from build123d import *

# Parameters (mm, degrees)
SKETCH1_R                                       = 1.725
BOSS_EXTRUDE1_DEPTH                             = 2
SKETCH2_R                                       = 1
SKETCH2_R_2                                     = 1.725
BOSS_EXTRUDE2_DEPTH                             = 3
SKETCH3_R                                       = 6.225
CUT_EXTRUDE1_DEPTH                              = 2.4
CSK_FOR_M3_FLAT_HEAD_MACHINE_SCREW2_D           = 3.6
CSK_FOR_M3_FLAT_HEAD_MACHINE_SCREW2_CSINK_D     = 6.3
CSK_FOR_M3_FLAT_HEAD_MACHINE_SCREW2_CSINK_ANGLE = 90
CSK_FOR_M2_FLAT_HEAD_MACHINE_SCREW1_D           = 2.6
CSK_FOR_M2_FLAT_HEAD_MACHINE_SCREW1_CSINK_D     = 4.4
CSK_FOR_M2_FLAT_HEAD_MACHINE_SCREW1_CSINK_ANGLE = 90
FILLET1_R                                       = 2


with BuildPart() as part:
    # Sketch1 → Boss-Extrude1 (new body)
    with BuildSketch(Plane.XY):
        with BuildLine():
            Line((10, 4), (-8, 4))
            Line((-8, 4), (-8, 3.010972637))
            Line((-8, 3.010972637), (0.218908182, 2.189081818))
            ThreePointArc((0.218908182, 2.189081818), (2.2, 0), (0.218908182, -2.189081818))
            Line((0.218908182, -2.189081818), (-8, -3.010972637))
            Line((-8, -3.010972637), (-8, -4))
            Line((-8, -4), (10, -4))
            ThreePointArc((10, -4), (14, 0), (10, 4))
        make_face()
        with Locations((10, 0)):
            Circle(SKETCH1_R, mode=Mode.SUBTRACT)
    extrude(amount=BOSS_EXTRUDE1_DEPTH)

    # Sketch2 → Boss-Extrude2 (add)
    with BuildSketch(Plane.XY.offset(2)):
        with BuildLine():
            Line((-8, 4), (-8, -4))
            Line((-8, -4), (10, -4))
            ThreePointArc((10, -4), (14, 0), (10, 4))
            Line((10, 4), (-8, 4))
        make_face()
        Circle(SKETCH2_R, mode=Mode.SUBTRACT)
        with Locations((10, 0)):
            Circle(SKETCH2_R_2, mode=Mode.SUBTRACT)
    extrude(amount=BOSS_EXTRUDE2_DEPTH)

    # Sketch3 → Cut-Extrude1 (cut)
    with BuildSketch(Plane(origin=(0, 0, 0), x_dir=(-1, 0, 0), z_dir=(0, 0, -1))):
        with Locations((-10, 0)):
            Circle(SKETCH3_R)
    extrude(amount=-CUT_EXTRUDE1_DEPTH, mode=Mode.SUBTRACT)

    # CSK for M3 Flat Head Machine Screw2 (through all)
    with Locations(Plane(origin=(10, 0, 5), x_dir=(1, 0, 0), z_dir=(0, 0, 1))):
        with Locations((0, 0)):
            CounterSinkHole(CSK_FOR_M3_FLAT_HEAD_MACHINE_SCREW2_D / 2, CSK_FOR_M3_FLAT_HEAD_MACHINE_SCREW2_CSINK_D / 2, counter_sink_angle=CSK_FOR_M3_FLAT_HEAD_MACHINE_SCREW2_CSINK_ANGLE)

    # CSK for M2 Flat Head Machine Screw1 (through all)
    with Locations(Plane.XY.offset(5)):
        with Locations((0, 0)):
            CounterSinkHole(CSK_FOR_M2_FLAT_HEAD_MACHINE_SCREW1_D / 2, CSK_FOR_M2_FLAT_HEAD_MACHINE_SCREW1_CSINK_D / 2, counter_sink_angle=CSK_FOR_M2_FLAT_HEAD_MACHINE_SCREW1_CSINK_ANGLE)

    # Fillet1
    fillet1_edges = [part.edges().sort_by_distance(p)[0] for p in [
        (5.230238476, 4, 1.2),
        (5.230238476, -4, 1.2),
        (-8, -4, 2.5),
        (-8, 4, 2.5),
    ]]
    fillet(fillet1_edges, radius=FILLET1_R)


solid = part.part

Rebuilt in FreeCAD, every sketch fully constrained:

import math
import FreeCAD as App
import Part
import Sketcher
from FreeCAD import Vector


def edges_at(feature, points):
    """Names of the edges that pass closest to the given points."""
    edges = feature.Shape.Edges
    near = lambda p: min(range(len(edges)), key=lambda i: edges[i].distToShape(Part.Vertex(*p))[0])
    return sorted({f"Edge{near(p) + 1}" for p in points})

doc = App.newDocument("Part")
body = doc.addObject("PartDesign::Body", "Body")

# Sketch on XY plane
sketch1 = body.newObject("Sketcher::SketchObject", "Sketch")
sketch1.AttachmentSupport = (doc.getObject("XY_Plane"), [""])
sketch1.MapMode = "FlatFace"
sketch1.addGeometry(Part.LineSegment(Vector(10, 4, 0), Vector(-8, 4, 0)), False)
sketch1.addGeometry(Part.LineSegment(Vector(-8, 4, 0), Vector(-8, 3.010973, 0)), False)
sketch1.addGeometry(Part.LineSegment(Vector(-8, 3.010973, 0), Vector(0.218908, 2.189082, 0)), False)
sketch1.addGeometry(Part.ArcOfCircle(Part.Circle(Vector(0, 0, 0), Vector(0, 0, 1), 2.2), math.radians(-84.289407), math.radians(84.289407)), False)
sketch1.addGeometry(Part.LineSegment(Vector(0.218908, -2.189082, 0), Vector(-8, -3.010973, 0)), False)
sketch1.addGeometry(Part.LineSegment(Vector(-8, -3.010973, 0), Vector(-8, -4, 0)), False)
sketch1.addGeometry(Part.LineSegment(Vector(-8, -4, 0), Vector(10, -4, 0)), False)
sketch1.addGeometry(Part.ArcOfCircle(Part.Circle(Vector(10, 0, 0), Vector(0, 0, 1), 4), math.radians(-90), math.radians(90)), False)
sketch1.addGeometry(Part.Circle(Vector(10, 0, 0), Vector(0, 0, 1), 1.725), False)
sketch1.addConstraint(Sketcher.Constraint("Coincident", 0, 2, 1, 1))
sketch1.addConstraint(Sketcher.Constraint("Coincident", 1, 2, 2, 1))
sketch1.addConstraint(Sketcher.Constraint("Tangent", 2, 2, 3, 2))
sketch1.addConstraint(Sketcher.Constraint("Tangent", 3, 1, 4, 1))
sketch1.addConstraint(Sketcher.Constraint("Coincident", 4, 2, 5, 1))
sketch1.addConstraint(Sketcher.Constraint("Coincident", 5, 2, 6, 1))
sketch1.addConstraint(Sketcher.Constraint("Tangent", 6, 2, 7, 1))
sketch1.addConstraint(Sketcher.Constraint("Tangent", 7, 2, 0, 1))
sketch1.addConstraint(Sketcher.Constraint("Horizontal", 0))
sketch1.addConstraint(Sketcher.Constraint("Vertical", 1))
sketch1.addConstraint(Sketcher.Constraint("Vertical", 5))
sketch1.addConstraint(Sketcher.Constraint("Horizontal", 6))
sketch1.addConstraint(Sketcher.Constraint("Coincident", 3, 3, -1, 1))
sketch1.addConstraint(Sketcher.Constraint("Coincident", 8, 3, 7, 3))
sketch1.addConstraint(Sketcher.Constraint("Symmetric", 1, 2, 4, 2, -1))
sketch1.addConstraint(Sketcher.Constraint("PointOnObject", 7, 3, -1))
sketch1.addConstraint(Sketcher.Constraint("Radius", 7, 4.0))
sketch1.addConstraint(Sketcher.Constraint("Radius", 3, 2.2))
sketch1.addConstraint(Sketcher.Constraint("Diameter", 8, 3.45))
sketch1.addConstraint(Sketcher.Constraint("DistanceX", 0, 2, 0, 1, 18.0))
sketch1.addConstraint(Sketcher.Constraint("DistanceX", -1, 1, 7, 3, 10.0))
sketch1.addConstraint(Sketcher.Constraint("Distance", 2, 8.2599))
pad1 = body.newObject("PartDesign::Pad", "Pad")
pad1.Profile = sketch1
pad1.Length = 2

# Sketch on XY plane
sketch2 = body.newObject("Sketcher::SketchObject", "Sketch001")
sketch2.AttachmentSupport = (doc.getObject("XY_Plane"), [""])
sketch2.MapMode = "FlatFace"
sketch2.AttachmentOffset = App.Placement(Vector(0, 0, 2), App.Rotation())
sketch2.addGeometry(Part.LineSegment(Vector(-8, 4, 0), Vector(-8, -4, 0)), False)
sketch2.addGeometry(Part.LineSegment(Vector(-8, -4, 0), Vector(10, -4, 0)), False)
sketch2.addGeometry(Part.ArcOfCircle(Part.Circle(Vector(10, 0, 0), Vector(0, 0, 1), 4), math.radians(-90), math.radians(90)), False)
sketch2.addGeometry(Part.LineSegment(Vector(10, 4, 0), Vector(-8, 4, 0)), False)
sketch2.addGeometry(Part.Circle(Vector(0, 0, 0), Vector(0, 0, 1), 1), False)
sketch2.addGeometry(Part.Circle(Vector(10, 0, 0), Vector(0, 0, 1), 1.725), False)
sketch2.addConstraint(Sketcher.Constraint("Coincident", 0, 2, 1, 1))
sketch2.addConstraint(Sketcher.Constraint("Tangent", 1, 2, 2, 1))
sketch2.addConstraint(Sketcher.Constraint("Tangent", 2, 2, 3, 1))
sketch2.addConstraint(Sketcher.Constraint("Coincident", 3, 2, 0, 1))
sketch2.addConstraint(Sketcher.Constraint("Vertical", 0))
sketch2.addConstraint(Sketcher.Constraint("Horizontal", 1))
sketch2.addConstraint(Sketcher.Constraint("Horizontal", 3))
sketch2.addConstraint(Sketcher.Constraint("Coincident", 4, 3, -1, 1))
sketch2.addConstraint(Sketcher.Constraint("Coincident", 5, 3, 2, 3))
sketch2.addConstraint(Sketcher.Constraint("PointOnObject", 2, 3, -1))
sketch2.addConstraint(Sketcher.Constraint("Diameter", 4, 2.0))
sketch2.addConstraint(Sketcher.Constraint("Radius", 2, 4.0))
sketch2.addConstraint(Sketcher.Constraint("Diameter", 5, 3.45))
sketch2.addConstraint(Sketcher.Constraint("DistanceX", 1, 1, 1, 2, 18.0))
sketch2.addConstraint(Sketcher.Constraint("DistanceX", -1, 1, 2, 3, 10.0))
pad2 = body.newObject("PartDesign::Pad", "Pad001")
pad2.Profile = sketch2
pad2.Length = 3

# Sketch on XY plane
sketch3 = body.newObject("Sketcher::SketchObject", "Sketch002")
sketch3.AttachmentSupport = (doc.getObject("XY_Plane"), [""])
sketch3.MapMode = "FlatFace"
sketch3.addGeometry(Part.Circle(Vector(10, 0, 0), Vector(0, 0, 1), 6.225), False)
sketch3.addConstraint(Sketcher.Constraint("PointOnObject", 0, 3, -1))
sketch3.addConstraint(Sketcher.Constraint("Diameter", 0, 12.45))
sketch3.addConstraint(Sketcher.Constraint("DistanceX", -1, 1, 0, 3, 10.0))
pocket1 = body.newObject("PartDesign::Pocket", "Pocket")
pocket1.Profile = sketch3
pocket1.Length = 2.4
pocket1.Reversed = True

# Sketch on XY plane
sketch4 = body.newObject("Sketcher::SketchObject", "Sketch003")
sketch4.AttachmentSupport = (doc.getObject("XY_Plane"), [""])
sketch4.MapMode = "FlatFace"
sketch4.AttachmentOffset = App.Placement(Vector(0, 0, 5), App.Rotation())
sketch4.addGeometry(Part.Circle(Vector(10, 0, 0), Vector(0, 0, 1), 1.8), False)
sketch4.addConstraint(Sketcher.Constraint("PointOnObject", 0, 3, -1))
sketch4.addConstraint(Sketcher.Constraint("Diameter", 0, 3.6))
sketch4.addConstraint(Sketcher.Constraint("DistanceX", -1, 1, 0, 3, 10.0))
doc.recompute()
hole = body.newObject("PartDesign::Hole", "Hole")
hole.Profile = sketch4
hole.ThreadType = "None"
hole.Diameter = 3.6
hole.DepthType = "ThroughAll"
hole.HoleCutType = "Countersink"
hole.HoleCutDiameter = 6.3
hole.HoleCutCountersinkAngle = 90

# Sketch on XY plane
sketch5 = body.newObject("Sketcher::SketchObject", "Sketch004")
sketch5.AttachmentSupport = (doc.getObject("XY_Plane"), [""])
sketch5.MapMode = "FlatFace"
sketch5.AttachmentOffset = App.Placement(Vector(0, 0, 5), App.Rotation())
sketch5.addGeometry(Part.Circle(Vector(0, 0, 0), Vector(0, 0, 1), 1.3), False)
sketch5.addConstraint(Sketcher.Constraint("Coincident", 0, 3, -1, 1))
sketch5.addConstraint(Sketcher.Constraint("Diameter", 0, 2.6))
doc.recompute()
hole2 = body.newObject("PartDesign::Hole", "Hole001")
hole2.Profile = sketch5
hole2.ThreadType = "None"
hole2.Diameter = 2.6
hole2.DepthType = "ThroughAll"
hole2.HoleCutType = "Countersink"
hole2.HoleCutDiameter = 4.4
hole2.HoleCutCountersinkAngle = 90
doc.recompute()

fillet = body.newObject("PartDesign::Fillet", "Fillet")
fillet.Base = (hole2, edges_at(hole2, [
    (5.23, 4, 1.2),
    (5.23, -4, 1.2),
    (-8, -4, 2.5),
    (-8, 4, 2.5),
]))
fillet.Radius = 2

doc.recompute()
